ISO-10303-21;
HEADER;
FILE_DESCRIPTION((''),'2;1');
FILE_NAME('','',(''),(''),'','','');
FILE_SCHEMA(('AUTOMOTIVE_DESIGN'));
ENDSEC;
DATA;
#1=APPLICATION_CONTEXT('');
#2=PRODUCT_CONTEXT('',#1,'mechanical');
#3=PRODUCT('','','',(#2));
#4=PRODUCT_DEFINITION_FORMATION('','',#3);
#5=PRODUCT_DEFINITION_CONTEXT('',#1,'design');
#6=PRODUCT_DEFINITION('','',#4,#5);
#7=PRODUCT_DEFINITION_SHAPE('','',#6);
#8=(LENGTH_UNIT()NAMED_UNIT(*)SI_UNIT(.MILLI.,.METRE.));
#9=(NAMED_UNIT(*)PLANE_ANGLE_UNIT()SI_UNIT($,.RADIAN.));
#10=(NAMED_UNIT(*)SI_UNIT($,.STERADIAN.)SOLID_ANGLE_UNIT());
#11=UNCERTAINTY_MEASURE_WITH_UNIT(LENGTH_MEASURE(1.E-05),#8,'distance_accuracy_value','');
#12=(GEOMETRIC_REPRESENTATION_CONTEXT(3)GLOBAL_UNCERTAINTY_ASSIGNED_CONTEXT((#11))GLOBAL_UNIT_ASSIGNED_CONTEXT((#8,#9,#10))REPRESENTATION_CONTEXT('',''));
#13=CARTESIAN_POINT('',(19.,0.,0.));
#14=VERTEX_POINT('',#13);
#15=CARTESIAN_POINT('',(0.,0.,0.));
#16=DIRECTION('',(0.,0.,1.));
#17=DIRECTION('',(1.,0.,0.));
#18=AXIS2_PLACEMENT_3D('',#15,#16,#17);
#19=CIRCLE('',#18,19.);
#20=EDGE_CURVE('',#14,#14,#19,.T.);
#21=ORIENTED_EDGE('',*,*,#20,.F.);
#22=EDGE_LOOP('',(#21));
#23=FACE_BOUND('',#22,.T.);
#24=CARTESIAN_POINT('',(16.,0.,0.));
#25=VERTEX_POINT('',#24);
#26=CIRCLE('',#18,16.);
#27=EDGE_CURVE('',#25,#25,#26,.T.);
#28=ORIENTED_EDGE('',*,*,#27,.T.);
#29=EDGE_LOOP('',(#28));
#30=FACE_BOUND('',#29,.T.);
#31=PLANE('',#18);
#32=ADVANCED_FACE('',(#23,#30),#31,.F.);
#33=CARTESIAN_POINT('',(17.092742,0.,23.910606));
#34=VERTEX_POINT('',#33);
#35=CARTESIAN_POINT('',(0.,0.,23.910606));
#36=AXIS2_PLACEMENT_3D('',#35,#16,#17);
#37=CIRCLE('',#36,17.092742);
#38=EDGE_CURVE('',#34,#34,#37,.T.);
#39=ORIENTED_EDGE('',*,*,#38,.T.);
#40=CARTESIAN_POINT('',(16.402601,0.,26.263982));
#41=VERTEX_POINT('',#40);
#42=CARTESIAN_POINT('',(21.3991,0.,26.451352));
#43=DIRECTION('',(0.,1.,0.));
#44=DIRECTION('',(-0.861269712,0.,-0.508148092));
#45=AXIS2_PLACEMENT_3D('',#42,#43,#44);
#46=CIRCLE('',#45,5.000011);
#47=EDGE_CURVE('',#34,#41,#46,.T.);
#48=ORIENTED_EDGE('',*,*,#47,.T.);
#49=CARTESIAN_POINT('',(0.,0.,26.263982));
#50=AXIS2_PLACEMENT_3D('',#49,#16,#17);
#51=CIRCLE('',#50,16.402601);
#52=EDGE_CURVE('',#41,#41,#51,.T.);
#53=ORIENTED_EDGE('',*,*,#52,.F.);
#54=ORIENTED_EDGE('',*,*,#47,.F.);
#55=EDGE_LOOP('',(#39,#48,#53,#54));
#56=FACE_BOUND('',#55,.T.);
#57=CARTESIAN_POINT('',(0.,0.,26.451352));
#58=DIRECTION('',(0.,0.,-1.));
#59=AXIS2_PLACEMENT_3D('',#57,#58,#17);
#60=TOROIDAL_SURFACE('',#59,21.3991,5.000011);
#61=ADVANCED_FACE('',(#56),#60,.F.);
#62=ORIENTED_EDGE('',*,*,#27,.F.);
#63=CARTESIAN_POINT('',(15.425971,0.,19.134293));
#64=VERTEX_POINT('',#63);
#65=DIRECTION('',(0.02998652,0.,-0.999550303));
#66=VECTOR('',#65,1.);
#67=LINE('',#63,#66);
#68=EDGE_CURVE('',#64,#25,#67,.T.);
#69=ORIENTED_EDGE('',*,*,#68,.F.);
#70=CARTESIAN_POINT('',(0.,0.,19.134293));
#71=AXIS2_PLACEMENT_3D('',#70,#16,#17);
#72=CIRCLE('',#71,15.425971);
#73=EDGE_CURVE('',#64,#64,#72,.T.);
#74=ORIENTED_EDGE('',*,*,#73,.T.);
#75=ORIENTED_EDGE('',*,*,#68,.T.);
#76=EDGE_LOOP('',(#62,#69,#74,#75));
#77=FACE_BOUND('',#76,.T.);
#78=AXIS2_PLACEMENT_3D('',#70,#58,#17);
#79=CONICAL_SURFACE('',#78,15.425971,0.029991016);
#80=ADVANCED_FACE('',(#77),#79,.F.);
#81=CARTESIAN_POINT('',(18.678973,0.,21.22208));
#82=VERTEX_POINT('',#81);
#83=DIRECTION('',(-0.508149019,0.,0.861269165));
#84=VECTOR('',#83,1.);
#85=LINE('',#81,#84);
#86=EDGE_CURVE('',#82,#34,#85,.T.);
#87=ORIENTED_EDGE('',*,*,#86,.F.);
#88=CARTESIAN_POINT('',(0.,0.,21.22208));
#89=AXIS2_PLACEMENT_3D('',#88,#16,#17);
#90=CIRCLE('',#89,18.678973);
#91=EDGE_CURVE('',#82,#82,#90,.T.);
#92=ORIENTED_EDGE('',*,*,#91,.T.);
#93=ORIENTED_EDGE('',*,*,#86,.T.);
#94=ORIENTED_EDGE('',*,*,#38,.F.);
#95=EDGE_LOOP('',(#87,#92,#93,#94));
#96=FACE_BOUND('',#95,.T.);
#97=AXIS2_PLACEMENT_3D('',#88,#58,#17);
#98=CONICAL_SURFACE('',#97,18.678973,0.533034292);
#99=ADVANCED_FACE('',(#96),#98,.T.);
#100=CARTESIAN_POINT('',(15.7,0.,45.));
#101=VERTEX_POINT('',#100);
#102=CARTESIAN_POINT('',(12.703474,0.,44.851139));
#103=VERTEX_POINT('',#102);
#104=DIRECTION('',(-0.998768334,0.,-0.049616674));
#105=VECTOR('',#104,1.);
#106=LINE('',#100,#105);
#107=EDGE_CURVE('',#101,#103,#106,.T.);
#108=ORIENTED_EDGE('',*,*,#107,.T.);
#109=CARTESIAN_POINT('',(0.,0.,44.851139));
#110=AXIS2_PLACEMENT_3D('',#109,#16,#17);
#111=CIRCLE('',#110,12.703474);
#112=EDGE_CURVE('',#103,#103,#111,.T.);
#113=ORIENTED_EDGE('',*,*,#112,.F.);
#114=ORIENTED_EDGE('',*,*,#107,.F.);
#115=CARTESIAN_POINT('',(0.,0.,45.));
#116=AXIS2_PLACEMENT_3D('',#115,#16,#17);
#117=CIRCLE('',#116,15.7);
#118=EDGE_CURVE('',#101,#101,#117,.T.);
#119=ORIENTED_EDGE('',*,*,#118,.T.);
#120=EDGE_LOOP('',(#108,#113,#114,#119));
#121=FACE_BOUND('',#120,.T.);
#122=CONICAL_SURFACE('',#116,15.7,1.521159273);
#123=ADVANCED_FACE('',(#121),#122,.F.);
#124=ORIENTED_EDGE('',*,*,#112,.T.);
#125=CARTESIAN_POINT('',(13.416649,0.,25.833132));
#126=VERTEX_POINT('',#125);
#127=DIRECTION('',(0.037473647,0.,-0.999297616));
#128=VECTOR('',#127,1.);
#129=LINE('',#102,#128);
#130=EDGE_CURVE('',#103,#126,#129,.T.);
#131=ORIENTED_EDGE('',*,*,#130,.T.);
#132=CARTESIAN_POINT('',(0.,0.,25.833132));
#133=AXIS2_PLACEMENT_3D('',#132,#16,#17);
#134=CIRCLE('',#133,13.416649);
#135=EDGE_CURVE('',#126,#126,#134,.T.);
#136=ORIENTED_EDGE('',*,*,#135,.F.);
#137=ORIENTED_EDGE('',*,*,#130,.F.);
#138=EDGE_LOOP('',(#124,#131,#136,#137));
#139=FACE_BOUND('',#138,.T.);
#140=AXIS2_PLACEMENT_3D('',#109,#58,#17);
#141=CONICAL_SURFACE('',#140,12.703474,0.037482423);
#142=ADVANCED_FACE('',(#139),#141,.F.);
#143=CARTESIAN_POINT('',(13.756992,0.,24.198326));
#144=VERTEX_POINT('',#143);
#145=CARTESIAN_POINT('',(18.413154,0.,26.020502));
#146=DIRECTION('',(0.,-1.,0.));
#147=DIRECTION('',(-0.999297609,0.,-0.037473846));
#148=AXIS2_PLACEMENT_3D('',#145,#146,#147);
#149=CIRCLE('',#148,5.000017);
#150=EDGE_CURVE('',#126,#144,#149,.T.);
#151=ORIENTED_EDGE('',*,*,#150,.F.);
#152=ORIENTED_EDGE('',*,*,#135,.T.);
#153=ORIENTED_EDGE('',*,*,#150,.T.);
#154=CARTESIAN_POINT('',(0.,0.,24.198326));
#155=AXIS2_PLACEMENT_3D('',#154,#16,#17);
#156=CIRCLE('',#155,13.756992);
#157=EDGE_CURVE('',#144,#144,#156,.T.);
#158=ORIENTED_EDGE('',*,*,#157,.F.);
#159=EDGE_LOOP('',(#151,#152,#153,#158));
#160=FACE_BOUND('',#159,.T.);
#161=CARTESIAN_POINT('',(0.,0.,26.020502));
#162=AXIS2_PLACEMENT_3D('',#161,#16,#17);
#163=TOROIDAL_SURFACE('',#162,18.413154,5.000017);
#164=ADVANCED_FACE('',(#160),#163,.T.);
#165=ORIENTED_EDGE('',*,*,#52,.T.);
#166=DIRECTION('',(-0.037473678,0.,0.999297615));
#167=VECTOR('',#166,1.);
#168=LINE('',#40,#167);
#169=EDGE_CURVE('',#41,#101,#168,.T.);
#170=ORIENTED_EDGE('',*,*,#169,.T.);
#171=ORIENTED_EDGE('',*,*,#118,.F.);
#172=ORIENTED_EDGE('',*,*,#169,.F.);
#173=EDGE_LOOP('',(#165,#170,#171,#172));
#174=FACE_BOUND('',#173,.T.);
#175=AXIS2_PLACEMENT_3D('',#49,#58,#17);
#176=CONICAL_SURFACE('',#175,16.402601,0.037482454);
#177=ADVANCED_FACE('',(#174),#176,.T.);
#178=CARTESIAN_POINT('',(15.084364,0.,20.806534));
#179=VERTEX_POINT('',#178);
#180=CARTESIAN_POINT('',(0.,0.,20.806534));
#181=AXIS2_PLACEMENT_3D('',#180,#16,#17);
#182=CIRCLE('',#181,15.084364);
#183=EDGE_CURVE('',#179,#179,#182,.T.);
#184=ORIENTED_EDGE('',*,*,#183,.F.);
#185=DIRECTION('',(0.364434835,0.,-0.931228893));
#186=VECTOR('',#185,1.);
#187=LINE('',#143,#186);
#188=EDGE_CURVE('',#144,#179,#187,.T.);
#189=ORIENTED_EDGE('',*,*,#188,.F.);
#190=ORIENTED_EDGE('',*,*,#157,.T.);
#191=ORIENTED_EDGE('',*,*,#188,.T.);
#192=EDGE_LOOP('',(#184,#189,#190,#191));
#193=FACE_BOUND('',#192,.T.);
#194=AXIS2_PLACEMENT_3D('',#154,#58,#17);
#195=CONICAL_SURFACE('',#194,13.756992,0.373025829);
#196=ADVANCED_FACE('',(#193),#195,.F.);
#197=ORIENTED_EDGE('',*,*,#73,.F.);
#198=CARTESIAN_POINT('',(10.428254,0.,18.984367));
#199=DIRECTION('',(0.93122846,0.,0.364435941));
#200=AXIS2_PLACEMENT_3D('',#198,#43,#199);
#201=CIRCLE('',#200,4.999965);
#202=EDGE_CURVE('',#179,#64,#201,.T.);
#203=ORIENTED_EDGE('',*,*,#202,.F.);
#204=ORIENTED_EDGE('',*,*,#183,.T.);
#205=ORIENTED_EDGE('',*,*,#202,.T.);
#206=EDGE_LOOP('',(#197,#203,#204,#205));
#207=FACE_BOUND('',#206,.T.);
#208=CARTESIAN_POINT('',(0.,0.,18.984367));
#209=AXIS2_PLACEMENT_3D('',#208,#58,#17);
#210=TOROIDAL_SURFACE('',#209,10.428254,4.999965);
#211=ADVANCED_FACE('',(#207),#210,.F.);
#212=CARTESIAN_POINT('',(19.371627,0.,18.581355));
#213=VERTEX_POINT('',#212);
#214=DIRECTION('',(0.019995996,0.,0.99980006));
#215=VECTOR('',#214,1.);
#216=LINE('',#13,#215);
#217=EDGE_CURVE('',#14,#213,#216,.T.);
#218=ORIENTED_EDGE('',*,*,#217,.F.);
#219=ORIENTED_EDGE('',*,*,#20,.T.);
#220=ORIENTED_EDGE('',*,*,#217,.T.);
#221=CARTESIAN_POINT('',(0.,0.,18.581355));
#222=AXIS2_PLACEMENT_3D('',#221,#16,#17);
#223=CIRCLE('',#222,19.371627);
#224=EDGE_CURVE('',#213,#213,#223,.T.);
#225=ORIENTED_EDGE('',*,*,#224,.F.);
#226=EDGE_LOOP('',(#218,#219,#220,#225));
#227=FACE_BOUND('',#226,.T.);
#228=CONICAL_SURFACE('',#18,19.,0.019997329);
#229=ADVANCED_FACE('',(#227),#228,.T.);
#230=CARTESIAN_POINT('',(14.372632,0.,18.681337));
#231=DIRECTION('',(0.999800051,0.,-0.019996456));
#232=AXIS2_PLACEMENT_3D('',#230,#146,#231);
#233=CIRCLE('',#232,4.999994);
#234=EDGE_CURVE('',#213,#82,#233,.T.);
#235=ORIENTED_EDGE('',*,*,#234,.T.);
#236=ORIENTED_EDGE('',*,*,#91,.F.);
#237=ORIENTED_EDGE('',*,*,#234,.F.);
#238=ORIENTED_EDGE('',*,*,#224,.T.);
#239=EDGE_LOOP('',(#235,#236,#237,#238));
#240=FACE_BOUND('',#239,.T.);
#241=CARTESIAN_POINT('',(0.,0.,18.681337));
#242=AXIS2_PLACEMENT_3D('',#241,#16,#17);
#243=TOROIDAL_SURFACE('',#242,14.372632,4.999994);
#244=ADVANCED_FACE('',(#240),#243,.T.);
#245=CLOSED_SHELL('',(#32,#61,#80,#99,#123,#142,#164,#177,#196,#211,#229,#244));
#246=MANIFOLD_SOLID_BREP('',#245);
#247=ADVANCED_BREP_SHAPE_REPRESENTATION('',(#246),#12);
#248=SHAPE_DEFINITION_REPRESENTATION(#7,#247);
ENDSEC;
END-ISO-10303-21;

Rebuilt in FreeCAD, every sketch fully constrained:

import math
import FreeCAD as App
import Part
import Sketcher
from FreeCAD import Vector

doc = App.newDocument("Part")
body = doc.addObject("PartDesign::Body", "Body")

# Sketch on XZ plane
sketch1 = body.newObject("Sketcher::SketchObject", "Sketch")
sketch1.AttachmentSupport = (doc.getObject("XZ_Plane"), [""])
sketch1.MapMode = "FlatFace"
sketch1.addGeometry([
    Part.LineSegment(Vector(15.425971, 19.134293, 0), Vector(16, 0, 0)),  # 0
    Part.LineSegment(Vector(16, 0, 0), Vector(19, 0, 0)),  # 1
    Part.LineSegment(Vector(19, 0, 0), Vector(19.371627, 18.581355, 0)),  # 2
    Part.ArcOfCircle(Part.Circle(Vector(14.372632, 18.681337, 0), Vector(0, 0, 1), 4.999994), math.radians(-1.145789), math.radians(30.540623)),  # 3
    Part.LineSegment(Vector(18.678973, 21.22208, 0), Vector(17.092742, 23.910606, 0)),  # 4
    Part.ArcOfCircle(Part.Circle(Vector(21.3991, 26.451352, 0), Vector(0, 0, 1), 5.000011), math.radians(-177.852399), math.radians(-149.459446)),  # 5
    Part.LineSegment(Vector(16.402601, 26.263982, 0), Vector(15.7, 45, 0)),  # 6
    Part.LineSegment(Vector(15.7, 45, 0), Vector(12.703474, 44.851139, 0)),  # 7
    Part.LineSegment(Vector(12.703474, 44.851139, 0), Vector(13.416649, 25.833132, 0)),  # 8
    Part.ArcOfCircle(Part.Circle(Vector(18.413154, 26.020502, 0), Vector(0, 0, 1), 5.000017), math.radians(-177.852404), math.radians(-158.627248)),  # 9
    Part.LineSegment(Vector(13.756992, 24.198326, 0), Vector(15.084364, 20.806534, 0)),  # 10
    Part.ArcOfCircle(Part.Circle(Vector(10.428254, 18.984367, 0), Vector(0, 0, 1), 4.999965), math.radians(1.718295), math.radians(21.372874)),  # 11
], False)
sketch1.addConstraint([
    Sketcher.Constraint("Coincident", 0, 2, 1, 1),
    Sketcher.Constraint("Coincident", 1, 2, 2, 1),
    Sketcher.Constraint("Tangent", 2, 2, 3, 1),
    Sketcher.Constraint("Tangent", 3, 2, 4, 1),
    Sketcher.Constraint("Tangent", 4, 2, 5, 2),
    Sketcher.Constraint("Tangent", 5, 1, 6, 1),
    Sketcher.Constraint("Coincident", 6, 2, 7, 1),
    Sketcher.Constraint("Coincident", 7, 2, 8, 1),
    Sketcher.Constraint("Tangent", 8, 2, 9, 1),
    Sketcher.Constraint("Tangent", 9, 2, 10, 1),
    Sketcher.Constraint("Tangent", 10, 2, 11, 2),
    Sketcher.Constraint("Tangent", 11, 1, 0, 1),
    Sketcher.Constraint("Horizontal", 1),
    Sketcher.Constraint("PointOnObject", 0, 2, -1),
    Sketcher.Constraint("Parallel", 6, 8),
    Sketcher.Constraint("DistanceX", 1, 1, 1, 2, 3.0),
    Sketcher.Constraint("DistanceX", -1, 1, 0, 2, 16.0),
    Sketcher.Constraint("DistanceY", -1, 1, 6, 2, 45.0),
    Sketcher.Constraint("DistanceX", -1, 1, 6, 2, 15.7),
    Sketcher.Constraint("Radius", 5, 5.000011),
    Sketcher.Constraint("Radius", 3, 4.999994),
    Sketcher.Constraint("Radius", 9, 5.000017),
    Sketcher.Constraint("Radius", 11, 4.999965),
    Sketcher.Constraint("Distance", 0, 19.142902),
    Sketcher.Constraint("DistanceX", -1, 1, 5, 3, 21.3991),
    Sketcher.Constraint("DistanceY", -1, 1, 9, 3, 26.020502),
    Sketcher.Constraint("DistanceX", 11, 3, 9, 3, 7.984899),
    Sketcher.Constraint("DistanceY", 3, 2, 5, 1, 5.041902),
    Sketcher.Constraint("Distance", 2, 18.585071),
    Sketcher.Constraint("Distance", 7, 3.000221),
    Sketcher.Constraint("DistanceY", -1, 1, 3, 2, 21.22208),
    Sketcher.Constraint("DistanceY", -1, 1, 7, 2, 44.851139),
])
revolution = body.newObject("PartDesign::Revolution", "Revolution")
revolution.Profile = sketch1
revolution.ReferenceAxis = (sketch1, ["V_Axis"])
revolution.Angle = 360

doc.recompute()
